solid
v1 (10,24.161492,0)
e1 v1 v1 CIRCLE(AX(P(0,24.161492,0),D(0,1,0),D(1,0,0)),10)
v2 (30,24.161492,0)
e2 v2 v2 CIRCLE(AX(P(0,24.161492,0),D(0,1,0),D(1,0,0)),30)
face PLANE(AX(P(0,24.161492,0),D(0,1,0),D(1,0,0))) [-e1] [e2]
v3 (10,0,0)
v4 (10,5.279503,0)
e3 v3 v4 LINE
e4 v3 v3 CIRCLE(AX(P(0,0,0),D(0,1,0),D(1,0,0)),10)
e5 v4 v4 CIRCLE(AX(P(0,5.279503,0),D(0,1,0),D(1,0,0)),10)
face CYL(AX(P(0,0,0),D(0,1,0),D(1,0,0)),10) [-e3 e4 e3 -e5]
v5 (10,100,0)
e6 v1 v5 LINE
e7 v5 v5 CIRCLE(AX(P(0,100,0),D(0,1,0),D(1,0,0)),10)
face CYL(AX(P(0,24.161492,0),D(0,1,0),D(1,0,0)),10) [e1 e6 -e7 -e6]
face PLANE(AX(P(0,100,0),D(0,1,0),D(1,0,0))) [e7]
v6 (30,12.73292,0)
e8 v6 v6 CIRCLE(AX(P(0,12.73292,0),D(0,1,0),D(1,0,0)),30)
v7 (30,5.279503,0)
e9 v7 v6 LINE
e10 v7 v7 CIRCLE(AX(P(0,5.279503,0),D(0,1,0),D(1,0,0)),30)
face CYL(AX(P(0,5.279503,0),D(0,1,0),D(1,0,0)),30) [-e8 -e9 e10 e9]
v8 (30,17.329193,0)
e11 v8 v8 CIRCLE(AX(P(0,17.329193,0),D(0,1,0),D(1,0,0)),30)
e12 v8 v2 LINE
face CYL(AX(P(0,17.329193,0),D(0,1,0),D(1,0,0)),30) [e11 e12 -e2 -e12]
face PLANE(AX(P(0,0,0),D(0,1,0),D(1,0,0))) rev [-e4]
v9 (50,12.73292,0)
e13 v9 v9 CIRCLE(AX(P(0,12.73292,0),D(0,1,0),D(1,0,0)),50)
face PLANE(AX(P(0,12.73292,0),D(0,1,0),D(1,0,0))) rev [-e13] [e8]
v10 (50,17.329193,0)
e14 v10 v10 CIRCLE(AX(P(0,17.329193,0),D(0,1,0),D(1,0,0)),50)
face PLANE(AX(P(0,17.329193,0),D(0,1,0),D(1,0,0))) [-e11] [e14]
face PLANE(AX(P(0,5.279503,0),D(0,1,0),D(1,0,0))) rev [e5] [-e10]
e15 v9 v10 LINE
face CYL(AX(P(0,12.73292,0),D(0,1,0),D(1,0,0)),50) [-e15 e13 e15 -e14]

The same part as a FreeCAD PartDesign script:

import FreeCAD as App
import Part
import Sketcher

doc = App.newDocument("Part")
body = doc.addObject("PartDesign::Body", "Body")

# Sketch on XY plane
sketch1 = body.newObject("Sketcher::SketchObject", "Sketch")
sketch1.AttachmentSupport = (doc.getObject("XY_Plane"), [""])
sketch1.MapMode = "FlatFace"
sketch1.addGeometry([
    Part.LineSegment(App.Vector(0, 0, 0), App.Vector(10, 0, 0)),  # 0
    Part.LineSegment(App.Vector(10, 0, 0), App.Vector(10, 5.3, 0)),  # 1
    Part.LineSegment(App.Vector(10, 5.3, 0), App.Vector(30, 5.3, 0)),  # 2
    Part.LineSegment(App.Vector(30, 5.3, 0), App.Vector(30, 12.7, 0)),  # 3
    Part.LineSegment(App.Vector(30, 12.7, 0), App.Vector(50, 12.7, 0)),  # 4
    Part.LineSegment(App.Vector(50, 12.7, 0), App.Vector(50, 17.3, 0)),  # 5
    Part.LineSegment(App.Vector(50, 17.3, 0), App.Vector(30, 17.3, 0)),  # 6
    Part.LineSegment(App.Vector(30, 17.3, 0), App.Vector(30, 24.2, 0)),  # 7
    Part.LineSegment(App.Vector(30, 24.2, 0), App.Vector(10, 24.2, 0)),  # 8
    Part.LineSegment(App.Vector(10, 24.2, 0), App.Vector(10, 100, 0)),  # 9
    Part.LineSegment(App.Vector(10, 100, 0), App.Vector(0, 100, 0)),  # 10
    Part.LineSegment(App.Vector(0, 100, 0), App.Vector(0, 0, 0)),  # 11
], False)
sketch1.addConstraint([
    Sketcher.Constraint("Coincident", 0, 2, 1, 1),
    Sketcher.Constraint("Coincident", 1, 2, 2, 1),
    Sketcher.Constraint("Coincident", 2, 2, 3, 1),
    Sketcher.Constraint("Coincident", 3, 2, 4, 1),
    Sketcher.Constraint("Coincident", 4, 2, 5, 1),
    Sketcher.Constraint("Coincident", 5, 2, 6, 1),
    Sketcher.Constraint("Coincident", 6, 2, 7, 1),
    Sketcher.Constraint("Coincident", 7, 2, 8, 1),
    Sketcher.Constraint("Coincident", 8, 2, 9, 1),
    Sketcher.Constraint("Coincident", 9, 2, 10, 1),
    Sketcher.Constraint("Coincident", 10, 2, 11, 1),
    Sketcher.Constraint("Coincident", 11, 2, 0, 1),
    Sketcher.Constraint("Horizontal", 0),
    Sketcher.Constraint("Vertical", 1),
    Sketcher.Constraint("Horizontal", 2),
    Sketcher.Constraint("Vertical", 3),
    Sketcher.Constraint("Horizontal", 4),
    Sketcher.Constraint("Vertical", 5),
    Sketcher.Constraint("Horizontal", 6),
    Sketcher.Constraint("Vertical", 7),
    Sketcher.Constraint("Horizontal", 8),
    Sketcher.Constraint("Vertical", 9),
    Sketcher.Constraint("Horizontal", 10),
    Sketcher.Constraint("Vertical", 11),
    Sketcher.Constraint("Coincident", 11, 2, -1, 1),
    Sketcher.Constraint("Vertical", 3, 2, 6, 2),
    Sketcher.Constraint("Vertical", 1, 2, 8, 2),
    Sketcher.Constraint("Equal", 2, 4),
    Sketcher.Constraint("DistanceX", 0, 1, 0, 2, 10.0),
    Sketcher.Constraint("DistanceX", 2, 1, 2, 2, 20.0),
    Sketcher.Constraint("DistanceY", 11, 2, 11, 1, 100.0),
    Sketcher.Constraint("DistanceY", 7, 1, 7, 2, 6.832299),
    Sketcher.Constraint("DistanceY", 9, 1, 9, 2, 75.838508),
    Sketcher.Constraint("DistanceY", 1, 1, 1, 2, 5.279503),
    Sketcher.Constraint("DistanceY", 3, 1, 3, 2, 7.453417),
])
revolution = body.newObject("PartDesign::Revolution", "Revolution")
revolution.Profile = sketch1
revolution.ReferenceAxis = (sketch1, ["V_Axis"])
revolution.Angle = 360

doc.recompute()
